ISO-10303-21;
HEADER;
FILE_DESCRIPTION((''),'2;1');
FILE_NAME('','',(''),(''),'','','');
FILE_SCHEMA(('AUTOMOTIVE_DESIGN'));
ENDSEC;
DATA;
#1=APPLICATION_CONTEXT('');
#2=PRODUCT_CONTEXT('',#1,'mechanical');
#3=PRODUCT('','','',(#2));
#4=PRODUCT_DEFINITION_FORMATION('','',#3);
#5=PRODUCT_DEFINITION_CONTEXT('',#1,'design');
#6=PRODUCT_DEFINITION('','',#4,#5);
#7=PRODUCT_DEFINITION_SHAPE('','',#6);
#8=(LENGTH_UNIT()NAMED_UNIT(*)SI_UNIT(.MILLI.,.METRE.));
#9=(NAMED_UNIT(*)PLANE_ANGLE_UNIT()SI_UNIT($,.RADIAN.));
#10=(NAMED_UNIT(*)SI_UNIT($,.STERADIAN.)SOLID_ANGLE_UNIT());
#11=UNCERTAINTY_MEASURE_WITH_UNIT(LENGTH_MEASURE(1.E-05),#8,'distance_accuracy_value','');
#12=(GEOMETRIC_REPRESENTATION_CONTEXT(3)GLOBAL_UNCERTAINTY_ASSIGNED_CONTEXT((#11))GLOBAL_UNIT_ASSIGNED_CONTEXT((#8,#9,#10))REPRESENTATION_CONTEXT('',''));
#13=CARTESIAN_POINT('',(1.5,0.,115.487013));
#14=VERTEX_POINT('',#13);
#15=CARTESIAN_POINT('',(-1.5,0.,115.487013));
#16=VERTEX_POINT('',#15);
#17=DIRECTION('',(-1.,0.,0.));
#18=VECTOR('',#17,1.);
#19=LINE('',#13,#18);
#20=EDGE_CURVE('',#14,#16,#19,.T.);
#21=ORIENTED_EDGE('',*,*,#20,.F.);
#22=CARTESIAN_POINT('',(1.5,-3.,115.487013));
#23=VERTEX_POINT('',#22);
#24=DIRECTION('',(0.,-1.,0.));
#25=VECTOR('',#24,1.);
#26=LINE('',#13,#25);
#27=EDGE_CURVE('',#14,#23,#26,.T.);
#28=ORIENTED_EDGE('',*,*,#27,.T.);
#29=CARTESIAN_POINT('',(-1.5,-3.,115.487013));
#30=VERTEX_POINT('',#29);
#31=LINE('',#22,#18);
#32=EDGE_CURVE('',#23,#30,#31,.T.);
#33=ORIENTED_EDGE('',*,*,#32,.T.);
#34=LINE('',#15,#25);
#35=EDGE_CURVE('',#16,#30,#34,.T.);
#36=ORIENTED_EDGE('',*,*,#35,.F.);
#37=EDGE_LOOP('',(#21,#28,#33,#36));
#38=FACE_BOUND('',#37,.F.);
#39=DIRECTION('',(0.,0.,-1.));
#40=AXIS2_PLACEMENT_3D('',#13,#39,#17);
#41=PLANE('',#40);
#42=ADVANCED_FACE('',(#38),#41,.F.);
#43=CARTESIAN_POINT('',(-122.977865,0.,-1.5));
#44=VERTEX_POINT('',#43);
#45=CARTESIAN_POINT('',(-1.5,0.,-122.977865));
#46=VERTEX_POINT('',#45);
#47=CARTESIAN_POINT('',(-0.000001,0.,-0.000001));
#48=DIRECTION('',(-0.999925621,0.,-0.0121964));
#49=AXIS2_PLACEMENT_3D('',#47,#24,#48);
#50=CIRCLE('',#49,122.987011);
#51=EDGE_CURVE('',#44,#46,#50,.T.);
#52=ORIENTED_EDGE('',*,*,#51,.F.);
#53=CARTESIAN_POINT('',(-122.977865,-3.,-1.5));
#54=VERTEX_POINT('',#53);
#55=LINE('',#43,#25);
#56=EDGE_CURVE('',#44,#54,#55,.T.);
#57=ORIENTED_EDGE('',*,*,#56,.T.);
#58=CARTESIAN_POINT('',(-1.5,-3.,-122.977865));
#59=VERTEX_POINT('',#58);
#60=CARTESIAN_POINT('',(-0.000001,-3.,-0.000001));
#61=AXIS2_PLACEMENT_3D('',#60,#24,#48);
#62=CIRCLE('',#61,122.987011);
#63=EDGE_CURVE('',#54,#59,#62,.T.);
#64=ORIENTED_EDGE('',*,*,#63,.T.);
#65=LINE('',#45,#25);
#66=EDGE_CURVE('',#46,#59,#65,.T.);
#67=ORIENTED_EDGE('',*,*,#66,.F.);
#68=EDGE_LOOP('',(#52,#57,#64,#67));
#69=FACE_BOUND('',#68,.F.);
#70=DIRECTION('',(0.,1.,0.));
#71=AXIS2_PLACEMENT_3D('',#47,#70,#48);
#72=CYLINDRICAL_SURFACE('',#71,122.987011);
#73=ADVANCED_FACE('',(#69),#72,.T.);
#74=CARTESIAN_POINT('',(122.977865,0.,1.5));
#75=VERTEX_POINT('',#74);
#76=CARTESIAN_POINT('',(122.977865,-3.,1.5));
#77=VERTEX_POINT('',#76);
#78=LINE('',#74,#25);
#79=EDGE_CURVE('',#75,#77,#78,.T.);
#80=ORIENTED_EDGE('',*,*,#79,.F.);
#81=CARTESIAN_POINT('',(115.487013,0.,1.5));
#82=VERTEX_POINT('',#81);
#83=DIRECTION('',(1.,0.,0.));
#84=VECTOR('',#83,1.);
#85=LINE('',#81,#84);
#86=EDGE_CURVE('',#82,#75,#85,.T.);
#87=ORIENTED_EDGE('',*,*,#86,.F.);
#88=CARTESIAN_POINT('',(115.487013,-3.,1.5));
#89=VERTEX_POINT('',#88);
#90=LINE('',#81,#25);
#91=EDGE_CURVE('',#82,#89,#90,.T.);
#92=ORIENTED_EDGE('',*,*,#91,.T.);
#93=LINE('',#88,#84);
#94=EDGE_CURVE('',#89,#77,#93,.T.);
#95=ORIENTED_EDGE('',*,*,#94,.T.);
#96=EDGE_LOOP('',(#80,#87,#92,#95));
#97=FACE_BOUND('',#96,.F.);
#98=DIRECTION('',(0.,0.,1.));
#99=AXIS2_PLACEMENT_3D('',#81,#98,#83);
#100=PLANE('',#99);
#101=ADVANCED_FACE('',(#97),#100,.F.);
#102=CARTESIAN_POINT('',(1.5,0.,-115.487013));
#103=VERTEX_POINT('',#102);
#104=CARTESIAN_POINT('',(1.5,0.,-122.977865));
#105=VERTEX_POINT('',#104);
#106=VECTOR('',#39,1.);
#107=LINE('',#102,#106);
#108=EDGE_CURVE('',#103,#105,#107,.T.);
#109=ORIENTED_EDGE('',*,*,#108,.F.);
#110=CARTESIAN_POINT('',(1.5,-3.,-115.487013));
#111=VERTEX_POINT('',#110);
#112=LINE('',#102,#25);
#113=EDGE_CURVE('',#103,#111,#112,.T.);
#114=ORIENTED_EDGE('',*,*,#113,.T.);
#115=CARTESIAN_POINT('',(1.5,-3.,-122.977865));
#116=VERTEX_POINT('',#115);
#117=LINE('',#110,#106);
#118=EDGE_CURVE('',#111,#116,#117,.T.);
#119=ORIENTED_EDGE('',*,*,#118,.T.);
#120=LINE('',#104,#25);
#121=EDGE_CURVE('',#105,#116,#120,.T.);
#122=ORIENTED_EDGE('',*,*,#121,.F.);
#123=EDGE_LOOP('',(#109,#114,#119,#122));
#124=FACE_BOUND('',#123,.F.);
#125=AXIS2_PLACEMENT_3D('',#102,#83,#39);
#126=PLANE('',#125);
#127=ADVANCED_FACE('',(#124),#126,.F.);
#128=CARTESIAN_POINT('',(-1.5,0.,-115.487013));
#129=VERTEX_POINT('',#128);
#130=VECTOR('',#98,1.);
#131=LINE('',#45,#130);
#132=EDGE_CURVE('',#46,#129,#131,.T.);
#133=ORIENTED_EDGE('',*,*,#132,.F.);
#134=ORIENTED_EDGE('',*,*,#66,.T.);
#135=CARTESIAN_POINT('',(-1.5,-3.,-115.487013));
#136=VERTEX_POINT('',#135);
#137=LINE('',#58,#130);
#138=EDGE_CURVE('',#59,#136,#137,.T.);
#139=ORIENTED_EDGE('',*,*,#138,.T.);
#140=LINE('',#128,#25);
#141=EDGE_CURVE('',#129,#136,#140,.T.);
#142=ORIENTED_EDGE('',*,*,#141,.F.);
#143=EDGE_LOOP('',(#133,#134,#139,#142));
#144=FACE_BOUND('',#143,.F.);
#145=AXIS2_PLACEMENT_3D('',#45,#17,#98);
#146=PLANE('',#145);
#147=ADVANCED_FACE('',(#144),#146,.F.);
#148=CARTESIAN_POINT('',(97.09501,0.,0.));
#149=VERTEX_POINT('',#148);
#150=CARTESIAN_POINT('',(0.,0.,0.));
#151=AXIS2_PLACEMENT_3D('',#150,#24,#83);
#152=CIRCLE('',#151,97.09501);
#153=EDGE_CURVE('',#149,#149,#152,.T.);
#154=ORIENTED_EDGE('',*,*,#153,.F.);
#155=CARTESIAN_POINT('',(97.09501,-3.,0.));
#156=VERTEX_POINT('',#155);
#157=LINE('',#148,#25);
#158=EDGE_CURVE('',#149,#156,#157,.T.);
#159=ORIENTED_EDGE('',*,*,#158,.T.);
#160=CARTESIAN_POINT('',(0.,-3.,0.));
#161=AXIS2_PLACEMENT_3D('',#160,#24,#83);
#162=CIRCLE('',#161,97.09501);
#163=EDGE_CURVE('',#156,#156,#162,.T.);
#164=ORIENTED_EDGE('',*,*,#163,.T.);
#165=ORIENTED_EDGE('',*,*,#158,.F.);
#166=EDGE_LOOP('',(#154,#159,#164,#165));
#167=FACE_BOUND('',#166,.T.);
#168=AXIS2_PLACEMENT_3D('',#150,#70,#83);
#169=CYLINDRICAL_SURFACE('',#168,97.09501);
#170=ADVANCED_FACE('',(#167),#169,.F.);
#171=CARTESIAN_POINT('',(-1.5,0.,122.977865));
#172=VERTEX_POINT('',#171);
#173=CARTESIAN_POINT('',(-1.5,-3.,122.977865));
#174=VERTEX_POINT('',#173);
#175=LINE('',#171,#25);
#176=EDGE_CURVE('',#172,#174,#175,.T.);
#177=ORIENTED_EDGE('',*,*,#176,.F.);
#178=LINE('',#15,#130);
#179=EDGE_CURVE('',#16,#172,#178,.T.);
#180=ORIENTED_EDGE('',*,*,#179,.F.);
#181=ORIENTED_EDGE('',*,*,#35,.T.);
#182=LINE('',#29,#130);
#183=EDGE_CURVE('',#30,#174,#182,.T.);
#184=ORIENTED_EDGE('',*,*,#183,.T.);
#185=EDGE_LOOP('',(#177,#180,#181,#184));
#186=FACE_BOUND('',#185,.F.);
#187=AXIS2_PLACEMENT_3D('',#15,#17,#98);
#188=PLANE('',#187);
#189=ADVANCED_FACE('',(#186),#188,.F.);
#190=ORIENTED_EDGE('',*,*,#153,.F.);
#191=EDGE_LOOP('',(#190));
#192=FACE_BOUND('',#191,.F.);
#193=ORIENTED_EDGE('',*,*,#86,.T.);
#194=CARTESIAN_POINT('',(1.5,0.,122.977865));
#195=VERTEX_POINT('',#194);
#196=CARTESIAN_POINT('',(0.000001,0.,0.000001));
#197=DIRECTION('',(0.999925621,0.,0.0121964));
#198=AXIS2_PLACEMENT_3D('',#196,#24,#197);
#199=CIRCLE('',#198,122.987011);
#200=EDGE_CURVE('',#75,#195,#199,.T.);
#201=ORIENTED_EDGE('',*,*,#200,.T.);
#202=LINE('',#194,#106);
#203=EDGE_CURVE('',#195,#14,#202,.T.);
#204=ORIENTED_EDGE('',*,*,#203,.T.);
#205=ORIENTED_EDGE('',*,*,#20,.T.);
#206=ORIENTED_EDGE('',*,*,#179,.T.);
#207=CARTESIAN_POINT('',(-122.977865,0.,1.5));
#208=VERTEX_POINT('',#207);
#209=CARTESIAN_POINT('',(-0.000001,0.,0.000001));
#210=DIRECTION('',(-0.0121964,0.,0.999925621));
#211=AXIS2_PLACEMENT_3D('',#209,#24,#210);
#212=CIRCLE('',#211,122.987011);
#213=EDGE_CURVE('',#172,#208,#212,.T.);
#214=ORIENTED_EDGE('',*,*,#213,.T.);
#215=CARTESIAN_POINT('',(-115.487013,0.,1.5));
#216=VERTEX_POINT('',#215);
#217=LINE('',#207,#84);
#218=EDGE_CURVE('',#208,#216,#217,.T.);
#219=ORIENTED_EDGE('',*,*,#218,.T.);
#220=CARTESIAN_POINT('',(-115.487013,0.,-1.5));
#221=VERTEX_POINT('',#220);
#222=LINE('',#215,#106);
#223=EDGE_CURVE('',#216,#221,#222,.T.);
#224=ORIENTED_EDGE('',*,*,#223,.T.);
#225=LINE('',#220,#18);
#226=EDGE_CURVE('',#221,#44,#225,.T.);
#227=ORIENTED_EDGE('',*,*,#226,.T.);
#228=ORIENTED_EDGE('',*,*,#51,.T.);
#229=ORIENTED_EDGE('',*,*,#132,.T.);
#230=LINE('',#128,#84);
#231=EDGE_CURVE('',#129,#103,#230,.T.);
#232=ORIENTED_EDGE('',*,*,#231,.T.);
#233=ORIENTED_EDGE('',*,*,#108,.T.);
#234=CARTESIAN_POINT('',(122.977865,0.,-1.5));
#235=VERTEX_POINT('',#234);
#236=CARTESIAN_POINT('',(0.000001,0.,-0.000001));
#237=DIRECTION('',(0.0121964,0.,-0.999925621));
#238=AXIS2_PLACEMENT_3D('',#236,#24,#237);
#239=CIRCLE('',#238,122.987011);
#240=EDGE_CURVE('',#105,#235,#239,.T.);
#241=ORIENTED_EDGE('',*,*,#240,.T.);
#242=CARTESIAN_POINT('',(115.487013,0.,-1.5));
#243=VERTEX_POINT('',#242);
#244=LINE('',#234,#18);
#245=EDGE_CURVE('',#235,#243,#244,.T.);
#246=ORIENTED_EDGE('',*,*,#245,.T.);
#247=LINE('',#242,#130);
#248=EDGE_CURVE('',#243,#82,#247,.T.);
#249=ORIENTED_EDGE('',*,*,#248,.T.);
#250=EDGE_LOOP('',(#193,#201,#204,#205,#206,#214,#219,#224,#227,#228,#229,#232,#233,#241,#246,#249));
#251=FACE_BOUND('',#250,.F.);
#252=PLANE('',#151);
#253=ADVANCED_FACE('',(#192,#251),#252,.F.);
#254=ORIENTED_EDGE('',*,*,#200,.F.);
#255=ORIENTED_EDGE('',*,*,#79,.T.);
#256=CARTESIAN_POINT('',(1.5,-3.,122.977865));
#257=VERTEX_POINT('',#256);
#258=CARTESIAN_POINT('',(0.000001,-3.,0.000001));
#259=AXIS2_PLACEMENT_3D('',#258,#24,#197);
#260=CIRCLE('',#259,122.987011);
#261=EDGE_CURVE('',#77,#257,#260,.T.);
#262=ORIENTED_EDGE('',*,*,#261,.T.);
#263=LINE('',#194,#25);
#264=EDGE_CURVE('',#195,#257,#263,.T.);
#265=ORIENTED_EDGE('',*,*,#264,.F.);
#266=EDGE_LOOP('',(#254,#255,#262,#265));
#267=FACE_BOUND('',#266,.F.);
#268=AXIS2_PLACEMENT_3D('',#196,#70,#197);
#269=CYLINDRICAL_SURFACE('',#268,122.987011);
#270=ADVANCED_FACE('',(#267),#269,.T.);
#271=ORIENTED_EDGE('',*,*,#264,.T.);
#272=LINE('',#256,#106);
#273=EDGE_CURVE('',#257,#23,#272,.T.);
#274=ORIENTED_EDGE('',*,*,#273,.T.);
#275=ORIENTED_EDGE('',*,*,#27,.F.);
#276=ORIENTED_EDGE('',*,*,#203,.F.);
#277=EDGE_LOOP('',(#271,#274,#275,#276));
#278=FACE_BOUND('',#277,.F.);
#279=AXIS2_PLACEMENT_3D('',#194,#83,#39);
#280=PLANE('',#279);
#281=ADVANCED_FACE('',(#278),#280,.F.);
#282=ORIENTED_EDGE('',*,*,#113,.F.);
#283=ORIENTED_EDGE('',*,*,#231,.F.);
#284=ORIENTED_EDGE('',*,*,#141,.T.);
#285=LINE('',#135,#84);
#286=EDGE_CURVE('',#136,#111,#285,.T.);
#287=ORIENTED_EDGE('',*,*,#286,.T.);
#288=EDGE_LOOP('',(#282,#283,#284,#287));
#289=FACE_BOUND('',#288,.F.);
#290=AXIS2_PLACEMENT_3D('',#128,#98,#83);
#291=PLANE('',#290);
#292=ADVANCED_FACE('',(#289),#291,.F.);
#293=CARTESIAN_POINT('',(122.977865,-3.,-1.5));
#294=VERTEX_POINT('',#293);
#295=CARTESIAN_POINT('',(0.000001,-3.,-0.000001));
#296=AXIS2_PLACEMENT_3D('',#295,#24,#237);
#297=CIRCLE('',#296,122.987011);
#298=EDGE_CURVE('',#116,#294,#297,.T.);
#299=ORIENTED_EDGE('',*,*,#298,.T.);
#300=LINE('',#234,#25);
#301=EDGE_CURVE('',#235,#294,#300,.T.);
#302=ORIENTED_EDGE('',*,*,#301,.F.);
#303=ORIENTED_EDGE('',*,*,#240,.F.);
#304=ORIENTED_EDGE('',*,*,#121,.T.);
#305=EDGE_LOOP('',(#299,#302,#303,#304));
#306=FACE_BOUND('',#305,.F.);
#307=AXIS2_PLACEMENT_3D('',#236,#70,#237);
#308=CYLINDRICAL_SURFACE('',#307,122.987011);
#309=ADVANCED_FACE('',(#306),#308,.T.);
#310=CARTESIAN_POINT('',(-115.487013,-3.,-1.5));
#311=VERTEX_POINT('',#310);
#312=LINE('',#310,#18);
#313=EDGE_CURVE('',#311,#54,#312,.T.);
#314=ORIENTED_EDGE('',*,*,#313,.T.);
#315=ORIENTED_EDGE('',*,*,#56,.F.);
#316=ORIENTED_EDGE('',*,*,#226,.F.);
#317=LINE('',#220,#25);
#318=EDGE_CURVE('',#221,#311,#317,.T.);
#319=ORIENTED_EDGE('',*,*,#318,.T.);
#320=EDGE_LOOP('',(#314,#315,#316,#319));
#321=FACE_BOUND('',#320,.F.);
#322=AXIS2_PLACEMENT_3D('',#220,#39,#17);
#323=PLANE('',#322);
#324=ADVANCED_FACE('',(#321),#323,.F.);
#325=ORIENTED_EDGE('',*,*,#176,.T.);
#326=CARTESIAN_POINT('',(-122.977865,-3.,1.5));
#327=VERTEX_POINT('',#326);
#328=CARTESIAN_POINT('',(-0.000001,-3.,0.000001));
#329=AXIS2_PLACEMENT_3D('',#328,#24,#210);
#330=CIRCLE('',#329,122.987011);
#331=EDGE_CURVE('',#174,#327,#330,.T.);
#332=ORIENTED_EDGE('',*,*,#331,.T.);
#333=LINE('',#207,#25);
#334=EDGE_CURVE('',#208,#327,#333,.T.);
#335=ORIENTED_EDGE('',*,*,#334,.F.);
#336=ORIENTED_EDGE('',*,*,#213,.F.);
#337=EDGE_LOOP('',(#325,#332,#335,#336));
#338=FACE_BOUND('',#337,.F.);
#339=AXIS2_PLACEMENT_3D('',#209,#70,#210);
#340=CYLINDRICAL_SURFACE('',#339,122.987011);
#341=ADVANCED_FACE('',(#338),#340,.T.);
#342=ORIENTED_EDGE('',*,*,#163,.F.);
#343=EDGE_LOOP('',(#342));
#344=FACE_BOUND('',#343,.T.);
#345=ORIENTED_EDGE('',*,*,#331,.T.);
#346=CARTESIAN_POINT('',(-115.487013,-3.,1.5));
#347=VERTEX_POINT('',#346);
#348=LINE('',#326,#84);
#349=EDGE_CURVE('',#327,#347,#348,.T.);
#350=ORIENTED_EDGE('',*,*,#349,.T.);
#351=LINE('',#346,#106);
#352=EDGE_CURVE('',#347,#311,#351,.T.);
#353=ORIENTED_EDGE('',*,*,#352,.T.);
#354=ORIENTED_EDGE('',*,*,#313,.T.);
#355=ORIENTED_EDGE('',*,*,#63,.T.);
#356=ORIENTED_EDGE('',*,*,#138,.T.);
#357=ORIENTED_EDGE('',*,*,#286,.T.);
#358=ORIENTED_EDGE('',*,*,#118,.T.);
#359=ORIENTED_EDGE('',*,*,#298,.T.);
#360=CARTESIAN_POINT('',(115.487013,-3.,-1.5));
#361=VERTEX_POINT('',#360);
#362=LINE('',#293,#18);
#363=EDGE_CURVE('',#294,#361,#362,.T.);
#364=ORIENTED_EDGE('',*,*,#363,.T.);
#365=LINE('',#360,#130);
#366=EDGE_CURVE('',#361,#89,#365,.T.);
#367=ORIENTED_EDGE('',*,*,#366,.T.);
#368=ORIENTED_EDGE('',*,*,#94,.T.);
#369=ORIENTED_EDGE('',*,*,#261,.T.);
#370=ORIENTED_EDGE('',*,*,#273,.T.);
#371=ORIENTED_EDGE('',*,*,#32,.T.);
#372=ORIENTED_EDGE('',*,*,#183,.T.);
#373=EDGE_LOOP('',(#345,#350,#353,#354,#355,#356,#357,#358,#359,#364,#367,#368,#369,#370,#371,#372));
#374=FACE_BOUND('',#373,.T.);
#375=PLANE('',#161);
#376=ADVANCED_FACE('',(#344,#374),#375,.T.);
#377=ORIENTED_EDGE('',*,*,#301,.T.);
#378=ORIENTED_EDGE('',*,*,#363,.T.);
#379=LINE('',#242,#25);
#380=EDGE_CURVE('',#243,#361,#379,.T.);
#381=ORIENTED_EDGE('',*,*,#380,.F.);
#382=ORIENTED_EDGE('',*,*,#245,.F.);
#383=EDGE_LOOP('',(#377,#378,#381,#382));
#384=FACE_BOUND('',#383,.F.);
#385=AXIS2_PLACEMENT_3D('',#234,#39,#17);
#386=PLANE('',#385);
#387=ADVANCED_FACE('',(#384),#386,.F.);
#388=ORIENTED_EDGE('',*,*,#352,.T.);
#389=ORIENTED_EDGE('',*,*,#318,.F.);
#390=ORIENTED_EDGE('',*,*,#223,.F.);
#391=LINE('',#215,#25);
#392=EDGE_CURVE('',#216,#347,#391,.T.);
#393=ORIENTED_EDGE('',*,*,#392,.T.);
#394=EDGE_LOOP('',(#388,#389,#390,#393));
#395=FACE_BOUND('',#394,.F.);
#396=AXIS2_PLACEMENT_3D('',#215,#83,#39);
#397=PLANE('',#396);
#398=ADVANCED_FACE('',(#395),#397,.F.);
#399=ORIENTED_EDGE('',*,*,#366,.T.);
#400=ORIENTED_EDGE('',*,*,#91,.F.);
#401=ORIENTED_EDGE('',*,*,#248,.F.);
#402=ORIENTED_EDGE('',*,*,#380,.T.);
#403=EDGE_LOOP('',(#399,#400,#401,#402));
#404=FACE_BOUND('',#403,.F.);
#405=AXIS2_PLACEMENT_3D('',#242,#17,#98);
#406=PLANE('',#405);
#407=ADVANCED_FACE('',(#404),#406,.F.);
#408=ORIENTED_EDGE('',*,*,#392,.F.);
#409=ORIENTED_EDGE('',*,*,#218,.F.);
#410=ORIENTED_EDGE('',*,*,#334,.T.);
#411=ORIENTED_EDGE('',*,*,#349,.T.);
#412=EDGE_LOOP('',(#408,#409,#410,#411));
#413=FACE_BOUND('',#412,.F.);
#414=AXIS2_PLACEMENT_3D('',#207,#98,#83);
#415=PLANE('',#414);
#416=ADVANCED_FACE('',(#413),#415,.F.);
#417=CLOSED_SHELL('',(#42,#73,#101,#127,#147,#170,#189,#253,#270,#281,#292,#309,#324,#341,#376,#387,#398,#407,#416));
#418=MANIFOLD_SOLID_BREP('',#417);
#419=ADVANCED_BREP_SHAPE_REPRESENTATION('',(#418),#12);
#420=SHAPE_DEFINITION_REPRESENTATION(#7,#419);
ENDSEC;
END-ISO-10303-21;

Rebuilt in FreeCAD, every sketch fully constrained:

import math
import FreeCAD as App
import Part
import Sketcher

V = App.Vector

doc = App.newDocument("Part")
body = doc.addObject("PartDesign::Body", "Body")

sketch1 = body.newObject("Sketcher::SketchObject", "Sketch")
sketch1.AttachmentSupport = (doc.getObject("XZ_Plane"), [""])
sketch1.MapMode = "FlatFace"
sketch1.addGeometry([
    Part.LineSegment(V(-1.5, 115.487013, 0), V(-1.5, 122.977865, 0)),
    Part.ArcOfCircle(Part.Circle(V(-0.000001, 0.000001, 0), V(0, 0, 1), 122.987011), math.radians(90.69882), math.radians(179.30118)),
    Part.LineSegment(V(-122.977865, 1.5, 0), V(-115.487013, 1.5, 0)),
    Part.LineSegment(V(-115.487013, 1.5, 0), V(-115.487013, -1.5, 0)),
    Part.LineSegment(V(-115.487013, -1.5, 0), V(-122.977865, -1.5, 0)),
    Part.ArcOfCircle(Part.Circle(V(-0.000001, -0.000001, 0), V(0, 0, 1), 122.987011), math.radians(-179.30118), math.radians(-90.69882)),
    Part.LineSegment(V(-1.5, -122.977865, 0), V(-1.5, -115.487013, 0)),
    Part.LineSegment(V(-1.5, -115.487013, 0), V(1.5, -115.487013, 0)),
    Part.LineSegment(V(1.5, -115.487013, 0), V(1.5, -122.977865, 0)),
    Part.ArcOfCircle(Part.Circle(V(0.000001, -0.000001, 0), V(0, 0, 1), 122.987011), math.radians(-89.30118), math.radians(-0.69882)),
    Part.LineSegment(V(122.977865, -1.5, 0), V(115.487013, -1.5, 0)),
    Part.LineSegment(V(115.487013, -1.5, 0), V(115.487013, 1.5, 0)),
    Part.LineSegment(V(115.487013, 1.5, 0), V(122.977865, 1.5, 0)),
    Part.ArcOfCircle(Part.Circle(V(0.000001, 0.000001, 0), V(0, 0, 1), 122.987011), math.radians(0.69882), math.radians(89.30118)),
    Part.LineSegment(V(1.5, 122.977865, 0), V(1.5, 115.487013, 0)),
    Part.LineSegment(V(1.5, 115.487013, 0), V(-1.5, 115.487013, 0)),
    Part.Circle(V(0, 0, 0), V(0, 0, 1), 97.09501),
], False)
sketch1.addConstraint([
    Sketcher.Constraint("Coincident", 0, 2, 1, 1),
    Sketcher.Constraint("Coincident", 1, 2, 2, 1),
    Sketcher.Constraint("Coincident", 2, 2, 3, 1),
    Sketcher.Constraint("Coincident", 3, 2, 4, 1),
    Sketcher.Constraint("Coincident", 4, 2, 5, 1),
    Sketcher.Constraint("Coincident", 5, 2, 6, 1),
    Sketcher.Constraint("Coincident", 6, 2, 7, 1),
    Sketcher.Constraint("Coincident", 7, 2, 8, 1),
    Sketcher.Constraint("Coincident", 8, 2, 9, 1),
    Sketcher.Constraint("Coincident", 9, 2, 10, 1),
    Sketcher.Constraint("Coincident", 10, 2, 11, 1),
    Sketcher.Constraint("Coincident", 11, 2, 12, 1),
    Sketcher.Constraint("Coincident", 12, 2, 13, 1),
    Sketcher.Constraint("Coincident", 13, 2, 14, 1),
    Sketcher.Constraint("Coincident", 14, 2, 15, 1),
    Sketcher.Constraint("Coincident", 15, 2, 0, 1),
    Sketcher.Constraint("Vertical", 0),
    Sketcher.Constraint("Horizontal", 2),
    Sketcher.Constraint("Vertical", 3),
    Sketcher.Constraint("Horizontal", 4),
    Sketcher.Constraint("Vertical", 6),
    Sketcher.Constraint("Horizontal", 7),
    Sketcher.Constraint("Vertical", 8),
    Sketcher.Constraint("Horizontal", 10),
    Sketcher.Constraint("Vertical", 11),
    Sketcher.Constraint("Horizontal", 12),
    Sketcher.Constraint("Vertical", 14),
    Sketcher.Constraint("Horizontal", 15),
    Sketcher.Constraint("Coincident", 1, 3, -1, 1),
    Sketcher.Constraint("Coincident", 5, 3, -1, 1),
    Sketcher.Constraint("Coincident", 9, 3, -1, 1),
    Sketcher.Constraint("Coincident", 13, 3, -1, 1),
    Sketcher.Constraint("Coincident", 16, 3, -1, 1),
    Sketcher.Constraint("Equal", 1, 5),
    Sketcher.Constraint("Equal", 5, 9),
    Sketcher.Constraint("Equal", 9, 13),
    Sketcher.Constraint("Symmetric", 2, 2, 10, 2, -1, 1),
    Sketcher.Constraint("Symmetric", 6, 2, 14, 2, -1, 1),
    Sketcher.Constraint("Horizontal", 5, 2, 8, 2),
    Sketcher.Constraint("Horizontal", 4, 2, 9, 2),
    Sketcher.Constraint("Horizontal", 2, 2, 11, 2),
    Sketcher.Constraint("Horizontal", 0, 2, 13, 2),
    Sketcher.Constraint("Equal", 12, 0),
    Sketcher.Constraint("Equal", 15, 3),
    Sketcher.Constraint("DistanceX", 7, 1, 7, 2, 3.0),
    Sketcher.Constraint("Diameter", 16, 194.19002),
    Sketcher.Constraint("Radius", 1, 122.987011),
    Sketcher.Constraint("DistanceX", 2, 1, 2, 2, 7.490852),
])
pad1 = body.newObject("PartDesign::Pad", "Pad")
pad1.Profile = sketch1
pad1.Length = 3

doc.recompute()
